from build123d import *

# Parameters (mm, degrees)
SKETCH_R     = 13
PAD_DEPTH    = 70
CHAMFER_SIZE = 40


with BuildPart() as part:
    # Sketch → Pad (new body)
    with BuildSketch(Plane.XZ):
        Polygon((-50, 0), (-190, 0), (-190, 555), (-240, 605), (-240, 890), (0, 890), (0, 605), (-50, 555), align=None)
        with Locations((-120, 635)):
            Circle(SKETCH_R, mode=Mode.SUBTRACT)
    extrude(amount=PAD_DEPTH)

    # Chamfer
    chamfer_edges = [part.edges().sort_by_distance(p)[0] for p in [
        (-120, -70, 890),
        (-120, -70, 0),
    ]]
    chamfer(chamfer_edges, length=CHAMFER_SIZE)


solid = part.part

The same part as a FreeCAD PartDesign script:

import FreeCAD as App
import Part
import Sketcher
from FreeCAD import Vector


def edges_at(feature, points):
    """Names of the edges that pass closest to the given points."""
    edges = feature.Shape.Edges
    near = lambda p: min(range(len(edges)), key=lambda i: edges[i].distToShape(Part.Vertex(*p))[0])
    return sorted({f"Edge{near(p) + 1}" for p in points})


def add_polygon(sketch, points):
    """Adds a closed chain of lines whose ends are joined by coincident constraints."""
    first, n = sketch.GeometryCount, len(points)
    for a, b in zip(points, points[1:] + points[:1]):
        sketch.addGeometry(Part.LineSegment(App.Vector(*a, 0), App.Vector(*b, 0)), False)
    for i in range(n):
        sketch.addConstraint(Sketcher.Constraint("Coincident", first + i, 2, first + (i + 1) % n, 1))

doc = App.newDocument("Part")
body = doc.addObject("PartDesign::Body", "Body")

sketch1 = body.newObject("Sketcher::SketchObject", "Sketch")
sketch1.AttachmentSupport = (doc.getObject("XZ_Plane"), [""])
sketch1.MapMode = "FlatFace"
add_polygon(sketch1, [(-190, 0), (-50, 0), (-50, 555), (0, 605), (0, 890), (-240, 890), (-240, 605), (-190, 555)])
sketch1.addGeometry(Part.Circle(Vector(-120, 635, 0), Vector(0, 0, 1), 13), False)
sketch1.addConstraint([
    Sketcher.Constraint("Horizontal", 0),
    Sketcher.Constraint("Vertical", 1),
    Sketcher.Constraint("Vertical", 3),
    Sketcher.Constraint("Horizontal", 4),
    Sketcher.Constraint("Vertical", 5),
    Sketcher.Constraint("Vertical", 7),
    Sketcher.Constraint("PointOnObject", 0, 2, -1),
    Sketcher.Constraint("PointOnObject", 2, 2, -2),
    Sketcher.Constraint("Perpendicular", 2, 6),
    Sketcher.Constraint("Horizontal", 2, 2, 5, 2),
    Sketcher.Constraint("Horizontal", 1, 2, 6, 2),
    Sketcher.Constraint("Equal", 2, 6),
    Sketcher.Constraint("Diameter", 8, 26.0),
    Sketcher.Constraint("DistanceX", 0, 1, 0, 2, 140.0),
    Sketcher.Constraint("DistanceX", 4, 2, 4, 1, 240.0),
    Sketcher.Constraint("DistanceY", 1, 1, 1, 2, 555.0),
    Sketcher.Constraint("DistanceY", 3, 1, 3, 2, 285.0),
    Sketcher.Constraint("DistanceX", 8, 3, -1, 1, 120.0),
    Sketcher.Constraint("DistanceY", -1, 1, 8, 3, 635.0),
])
pad1 = body.newObject("PartDesign::Pad", "Pad")
pad1.Profile = sketch1
pad1.Length = 70
doc.recompute()

chamfer = body.newObject("PartDesign::Chamfer", "Chamfer")
chamfer.Base = (pad1, edges_at(pad1, [(-120, -70, 890), (-120, -70, 0)]))
chamfer.Size = 40

doc.recompute()
